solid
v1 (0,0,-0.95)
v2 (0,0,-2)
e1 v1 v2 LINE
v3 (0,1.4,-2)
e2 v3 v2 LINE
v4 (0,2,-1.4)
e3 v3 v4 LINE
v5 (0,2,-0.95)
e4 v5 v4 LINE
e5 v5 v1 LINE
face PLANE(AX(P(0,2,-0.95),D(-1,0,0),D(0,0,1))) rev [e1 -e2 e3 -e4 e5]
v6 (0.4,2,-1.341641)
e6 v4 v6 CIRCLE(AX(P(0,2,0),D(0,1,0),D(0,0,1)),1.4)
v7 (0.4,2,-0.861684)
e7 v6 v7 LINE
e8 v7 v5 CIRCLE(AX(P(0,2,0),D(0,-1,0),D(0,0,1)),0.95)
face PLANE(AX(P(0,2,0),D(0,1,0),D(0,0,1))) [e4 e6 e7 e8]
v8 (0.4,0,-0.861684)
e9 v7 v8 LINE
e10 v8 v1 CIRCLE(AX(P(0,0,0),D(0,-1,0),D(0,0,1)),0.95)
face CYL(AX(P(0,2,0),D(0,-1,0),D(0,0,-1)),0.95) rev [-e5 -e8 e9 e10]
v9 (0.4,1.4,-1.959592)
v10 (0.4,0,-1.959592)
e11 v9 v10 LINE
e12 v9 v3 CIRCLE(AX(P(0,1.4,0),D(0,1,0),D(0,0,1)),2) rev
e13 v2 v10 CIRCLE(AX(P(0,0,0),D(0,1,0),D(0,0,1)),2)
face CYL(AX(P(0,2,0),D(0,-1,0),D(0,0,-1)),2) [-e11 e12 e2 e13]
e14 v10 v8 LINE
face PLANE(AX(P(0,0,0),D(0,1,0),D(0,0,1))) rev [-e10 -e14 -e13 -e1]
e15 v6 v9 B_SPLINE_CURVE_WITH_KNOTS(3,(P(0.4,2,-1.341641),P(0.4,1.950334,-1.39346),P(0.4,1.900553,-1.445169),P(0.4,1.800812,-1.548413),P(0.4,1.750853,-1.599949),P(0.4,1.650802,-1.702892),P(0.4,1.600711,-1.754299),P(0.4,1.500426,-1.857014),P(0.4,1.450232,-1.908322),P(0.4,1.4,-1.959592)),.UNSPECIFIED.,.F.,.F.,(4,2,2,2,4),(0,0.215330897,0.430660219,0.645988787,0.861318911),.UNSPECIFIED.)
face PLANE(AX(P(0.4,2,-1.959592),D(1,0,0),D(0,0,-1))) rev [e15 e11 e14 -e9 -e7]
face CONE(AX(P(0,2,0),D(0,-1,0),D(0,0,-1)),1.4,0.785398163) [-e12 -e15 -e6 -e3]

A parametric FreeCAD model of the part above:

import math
import FreeCAD as App
import Part
import Sketcher


def edges_at(feature, points):
    """Names of the edges that pass closest to the given points."""
    edges = feature.Shape.Edges
    near = lambda p: min(range(len(edges)), key=lambda i: edges[i].distToShape(Part.Vertex(*p))[0])
    return sorted({f"Edge{near(p) + 1}" for p in points})

doc = App.newDocument("Part")
body = doc.addObject("PartDesign::Body", "Body")

sketch1 = doc.addObject("Sketcher::SketchObject", "Sketch")
body.addObject(sketch1)
sketch1.AttachmentSupport = (doc.XZ_Plane, [""])
sketch1.MapMode = "FlatFace"
sketch1.addGeometry([
    Part.LineSegment(App.Vector(0, -0.95, 0), App.Vector(0, -2, 0)),
    Part.ArcOfCircle(Part.Circle(App.Vector(0, 0, 0), App.Vector(0, 0, 1), 2), math.radians(-78), math.radians(270)),
    Part.LineSegment(App.Vector(0.4, -1.96, 0), App.Vector(0.4, -0.86, 0)),
    Part.ArcOfCircle(Part.Circle(App.Vector(0, 0, 0), App.Vector(0, 0, 1), 0.95), math.radians(-65), math.radians(270)),
], False)
sketch1.addConstraint([
    Sketcher.Constraint("Coincident", 0, 2, 1, 2),
    Sketcher.Constraint("Coincident", 1, 1, 2, 1),
    Sketcher.Constraint("Coincident", 2, 2, 3, 1),
    Sketcher.Constraint("Coincident", 3, 2, 0, 1),
    Sketcher.Constraint("Vertical", 0),
    Sketcher.Constraint("Vertical", 2),
    Sketcher.Constraint("Coincident", 1, 3, -1, 1),
    Sketcher.Constraint("Coincident", 3, 3, -1, 1),
    Sketcher.Constraint("PointOnObject", 0, 2, -2),
    Sketcher.Constraint("Radius", 1, 2.0),
    Sketcher.Constraint("Radius", 3, 0.95),
    Sketcher.Constraint("DistanceX", -1, 1, 1, 1, 0.4),
])
pad1 = doc.addObject("PartDesign::Pad", "Pad")
body.addObject(pad1)
pad1.Profile = sketch1
pad1.Length = 2
pad1.Reversed = True
doc.recompute()

chamfer = doc.addObject("PartDesign::Chamfer", "Chamfer")
body.addObject(chamfer)
chamfer.Base = (pad1, edges_at(pad1, [(-0.201, 2, 1.99)]))
chamfer.Size = 0.6

doc.recompute()
